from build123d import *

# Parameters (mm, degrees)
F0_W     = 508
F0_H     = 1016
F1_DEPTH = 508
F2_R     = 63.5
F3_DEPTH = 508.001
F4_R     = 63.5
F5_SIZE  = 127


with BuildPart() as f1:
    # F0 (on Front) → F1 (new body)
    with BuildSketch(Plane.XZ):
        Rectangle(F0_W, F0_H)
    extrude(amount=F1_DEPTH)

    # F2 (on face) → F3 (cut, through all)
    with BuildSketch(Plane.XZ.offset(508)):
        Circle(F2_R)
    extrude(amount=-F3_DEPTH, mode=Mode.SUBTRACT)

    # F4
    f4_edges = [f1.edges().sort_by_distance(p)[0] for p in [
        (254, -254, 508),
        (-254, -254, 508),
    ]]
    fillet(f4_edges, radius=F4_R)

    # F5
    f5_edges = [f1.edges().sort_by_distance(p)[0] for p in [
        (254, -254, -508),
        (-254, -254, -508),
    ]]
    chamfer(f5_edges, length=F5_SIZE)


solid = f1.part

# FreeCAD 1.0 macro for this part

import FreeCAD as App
import Part
import Sketcher
from FreeCAD import Vector
Q = App.Units.Quantity


def edges_at(feature, points):
    """Names of the edges that pass closest to the given points."""
    edges = feature.Shape.Edges
    near = lambda p: min(range(len(edges)), key=lambda i: edges[i].distToShape(Part.Vertex(*p))[0])
    return sorted({f"Edge{near(p) + 1}" for p in points})


def add_polygon(sketch, points):
    """Adds a closed chain of lines whose ends are joined by coincident constraints."""
    first, n = sketch.GeometryCount, len(points)
    for a, b in zip(points, points[1:] + points[:1]):
        sketch.addGeometry(Part.LineSegment(App.Vector(*a, 0), App.Vector(*b, 0)), False)
    for i in range(n):
        sketch.addConstraint(Sketcher.Constraint("Coincident", first + i, 2, first + (i + 1) % n, 1))

doc = App.newDocument("Part")
body = doc.addObject("PartDesign::Body", "Body")

# Sketch on XZ plane
sketch1 = body.newObject("Sketcher::SketchObject", "Sketch")
sketch1.AttachmentSupport = (doc.getObject("XZ_Plane"), [""])
sketch1.MapMode = "FlatFace"
add_polygon(sketch1, [(-254, 508), (-254, -508), (254, -508), (254, 508)])  # lines 0-3
sketch1.addConstraint(Sketcher.Constraint("Vertical", 0))
sketch1.addConstraint(Sketcher.Constraint("Horizontal", 1))
sketch1.addConstraint(Sketcher.Constraint("Vertical", 2))
sketch1.addConstraint(Sketcher.Constraint("Horizontal", 3))
sketch1.addConstraint(Sketcher.Constraint("Symmetric", 0, 2, 2, 2, -1, 1))
sketch1.addConstraint(Sketcher.Constraint("DistanceX", 1, 1, 1, 2, Q("20 in")))
sketch1.addConstraint(Sketcher.Constraint("DistanceY", 0, 2, 0, 1, Q("40 in")))
pad1 = body.newObject("PartDesign::Pad", "Pad")
pad1.Profile = sketch1
pad1.Length = Q("20 in")

# Sketch on XZ plane
sketch2 = body.newObject("Sketcher::SketchObject", "Sketch001")
sketch2.AttachmentSupport = (doc.getObject("XZ_Plane"), [""])
sketch2.MapMode = "FlatFace"
sketch2.AttachmentOffset = App.Placement(Vector(0, 0, 20 * 25.4), App.Rotation())
sketch2.addGeometry(Part.Circle(Vector(0, 0, 0), Vector(0, 0, 1), 63.5), False)
sketch2.addConstraint(Sketcher.Constraint("Coincident", 0, 3, -1, 1))
sketch2.addConstraint(Sketcher.Constraint("Diameter", 0, Q("5 in")))
pocket1 = body.newObject("PartDesign::Pocket", "Pocket")
pocket1.Profile = sketch2
pocket1.Type = "ThroughAll"
doc.recompute()

fillet = body.newObject("PartDesign::Fillet", "Fillet")
fillet.Base = (pocket1, edges_at(pocket1, [(254, -254, 508), (-254, -254, 508)]))
fillet.Radius = Q("2.5 in")
doc.recompute()

chamfer = body.newObject("PartDesign::Chamfer", "Chamfer")
chamfer.Base = (fillet, edges_at(fillet, [(254, -254, -508), (-254, -254, -508)]))
chamfer.Size = Q("5 in")

doc.recompute()
